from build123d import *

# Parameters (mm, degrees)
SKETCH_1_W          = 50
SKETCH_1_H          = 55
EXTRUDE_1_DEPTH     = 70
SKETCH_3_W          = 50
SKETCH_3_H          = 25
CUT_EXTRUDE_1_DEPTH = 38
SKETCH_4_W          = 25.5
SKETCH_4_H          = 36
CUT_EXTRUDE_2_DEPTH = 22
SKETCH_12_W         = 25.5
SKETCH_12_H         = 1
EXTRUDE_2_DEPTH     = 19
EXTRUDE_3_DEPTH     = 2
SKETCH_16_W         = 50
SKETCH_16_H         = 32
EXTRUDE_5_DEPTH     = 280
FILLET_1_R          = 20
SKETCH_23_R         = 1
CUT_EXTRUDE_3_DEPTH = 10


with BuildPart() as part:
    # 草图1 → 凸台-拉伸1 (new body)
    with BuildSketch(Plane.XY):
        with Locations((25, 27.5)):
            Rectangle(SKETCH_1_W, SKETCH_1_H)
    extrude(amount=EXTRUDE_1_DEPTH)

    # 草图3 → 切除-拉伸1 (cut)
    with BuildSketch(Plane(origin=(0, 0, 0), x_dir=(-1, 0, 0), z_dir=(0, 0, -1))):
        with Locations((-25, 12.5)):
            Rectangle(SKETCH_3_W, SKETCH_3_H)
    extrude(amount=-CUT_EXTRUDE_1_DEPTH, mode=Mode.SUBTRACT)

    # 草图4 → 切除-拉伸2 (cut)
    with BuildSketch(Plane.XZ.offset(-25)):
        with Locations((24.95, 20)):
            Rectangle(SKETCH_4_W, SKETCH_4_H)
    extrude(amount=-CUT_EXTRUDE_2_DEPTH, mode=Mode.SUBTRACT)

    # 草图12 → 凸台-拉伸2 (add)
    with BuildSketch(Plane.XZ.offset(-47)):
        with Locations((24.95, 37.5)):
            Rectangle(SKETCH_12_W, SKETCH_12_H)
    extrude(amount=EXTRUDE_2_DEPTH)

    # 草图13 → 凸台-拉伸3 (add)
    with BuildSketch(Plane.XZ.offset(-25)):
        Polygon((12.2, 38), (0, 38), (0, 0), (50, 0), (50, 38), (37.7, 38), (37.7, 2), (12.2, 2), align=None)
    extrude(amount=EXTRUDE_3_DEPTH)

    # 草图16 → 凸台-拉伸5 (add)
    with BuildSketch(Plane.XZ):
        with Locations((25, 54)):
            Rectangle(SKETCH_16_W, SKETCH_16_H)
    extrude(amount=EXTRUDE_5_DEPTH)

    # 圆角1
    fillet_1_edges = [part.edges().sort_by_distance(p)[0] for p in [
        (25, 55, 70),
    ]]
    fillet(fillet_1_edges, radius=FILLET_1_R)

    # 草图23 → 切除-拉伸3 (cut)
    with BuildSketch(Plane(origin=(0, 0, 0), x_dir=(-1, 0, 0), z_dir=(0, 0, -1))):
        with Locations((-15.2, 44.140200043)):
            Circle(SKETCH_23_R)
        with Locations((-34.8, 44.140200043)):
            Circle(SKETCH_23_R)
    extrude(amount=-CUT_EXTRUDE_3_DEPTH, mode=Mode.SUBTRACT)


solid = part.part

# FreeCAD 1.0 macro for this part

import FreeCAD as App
import Part
import Sketcher

V = App.Vector
Q = App.Units.Quantity


def edges_at(feature, points):
    """Names of the edges that pass closest to the given points."""
    edges = feature.Shape.Edges
    near = lambda p: min(range(len(edges)), key=lambda i: edges[i].distToShape(Part.Vertex(*p))[0])
    return sorted({f"Edge{near(p) + 1}" for p in points})

doc = App.newDocument("Part")
body = doc.addObject("PartDesign::Body", "Body")

sketch1 = body.newObject("Sketcher::SketchObject", "Sketch")
sketch1.AttachmentSupport = (doc.getObject("XY_Plane"), [""])
sketch1.MapMode = "FlatFace"
sketch1.addGeometry([
    Part.LineSegment(V(0, 55, 0), V(0, 0, 0)),
    Part.LineSegment(V(0, 0, 0), V(50, 0, 0)),
    Part.LineSegment(V(50, 0, 0), V(50, 55, 0)),
    Part.LineSegment(V(50, 55, 0), V(0, 55, 0)),
], False)
sketch1.addConstraint([
    Sketcher.Constraint("Coincident", 0, 2, 1, 1),
    Sketcher.Constraint("Coincident", 1, 2, 2, 1),
    Sketcher.Constraint("Coincident", 2, 2, 3, 1),
    Sketcher.Constraint("Coincident", 3, 2, 0, 1),
    Sketcher.Constraint("Vertical", 0),
    Sketcher.Constraint("Horizontal", 1),
    Sketcher.Constraint("Vertical", 2),
    Sketcher.Constraint("Horizontal", 3),
    Sketcher.Constraint("Coincident", 0, 2, -1, 1),
    Sketcher.Constraint("DistanceX", 1, 1, 1, 2, Q("50 mm")),
    Sketcher.Constraint("DistanceY", 0, 2, 0, 1, Q("55 mm")),
])
pad1 = body.newObject("PartDesign::Pad", "Pad")
pad1.Profile = sketch1
pad1.Length = 70

sketch2 = body.newObject("Sketcher::SketchObject", "Sketch001")
sketch2.AttachmentSupport = (doc.getObject("XY_Plane"), [""])
sketch2.MapMode = "FlatFace"
sketch2.addGeometry([
    Part.LineSegment(V(50, 25, 0), V(50, 0, 0)),
    Part.LineSegment(V(50, 0, 0), V(0, 0, 0)),
    Part.LineSegment(V(0, 0, 0), V(0, 25, 0)),
    Part.LineSegment(V(0, 25, 0), V(50, 25, 0)),
], False)
sketch2.addConstraint([
    Sketcher.Constraint("Coincident", 0, 2, 1, 1),
    Sketcher.Constraint("Coincident", 1, 2, 2, 1),
    Sketcher.Constraint("Coincident", 2, 2, 3, 1),
    Sketcher.Constraint("Coincident", 3, 2, 0, 1),
    Sketcher.Constraint("Vertical", 0),
    Sketcher.Constraint("Horizontal", 1),
    Sketcher.Constraint("Vertical", 2),
    Sketcher.Constraint("Horizontal", 3),
    Sketcher.Constraint("Coincident", 1, 2, -1, 1),
    Sketcher.Constraint("DistanceX", 1, 2, 1, 1, Q("50 mm")),
    Sketcher.Constraint("DistanceY", 0, 2, 0, 1, Q("25 mm")),
])
pocket1 = body.newObject("PartDesign::Pocket", "Pocket")
pocket1.Profile = sketch2
pocket1.Length = 38
pocket1.Reversed = True

sketch3 = body.newObject("Sketcher::SketchObject", "Sketch002")
sketch3.AttachmentSupport = (doc.getObject("XZ_Plane"), [""])
sketch3.MapMode = "FlatFace"
sketch3.AttachmentOffset = App.Placement(V(0, 0, -25), App.Rotation())
sketch3.addGeometry([
    Part.LineSegment(V(12, 38, 0), V(12, 2, 0)),
    Part.LineSegment(V(12, 2, 0), V(38, 2, 0)),
    Part.LineSegment(V(38, 2, 0), V(38, 38, 0)),
    Part.LineSegment(V(38, 38, 0), V(12, 38, 0)),
], False)
sketch3.addConstraint([
    Sketcher.Constraint("Coincident", 0, 2, 1, 1),
    Sketcher.Constraint("Coincident", 1, 2, 2, 1),
    Sketcher.Constraint("Coincident", 2, 2, 3, 1),
    Sketcher.Constraint("Coincident", 3, 2, 0, 1),
    Sketcher.Constraint("Vertical", 0),
    Sketcher.Constraint("Horizontal", 1),
    Sketcher.Constraint("Vertical", 2),
    Sketcher.Constraint("Horizontal", 3),
    Sketcher.Constraint("DistanceY", 0, 2, 0, 1, Q("36 mm")),
    Sketcher.Constraint("DistanceX", 1, 1, 1, 2, Q("25.5 mm")),
    Sketcher.Constraint("DistanceY", -1, 1, 0, 2, Q("2 mm")),
    Sketcher.Constraint("DistanceX", -1, 1, 0, 2, Q("12.2 mm")),
])
pocket2 = body.newObject("PartDesign::Pocket", "Pocket001")
pocket2.Profile = sketch3
pocket2.Length = 22

sketch4 = body.newObject("Sketcher::SketchObject", "Sketch003")
sketch4.AttachmentSupport = (doc.getObject("XZ_Plane"), [""])
sketch4.MapMode = "FlatFace"
sketch4.AttachmentOffset = App.Placement(V(0, 0, -47), App.Rotation())
sketch4.addGeometry([
    Part.LineSegment(V(12.2, 38, 0), V(12.2, 37, 0)),
    Part.LineSegment(V(12.2, 37, 0), V(37.7, 37, 0)),
    Part.LineSegment(V(37.7, 37, 0), V(37.7, 38, 0)),
    Part.LineSegment(V(37.7, 38, 0), V(12.2, 38, 0)),
], False)
sketch4.addConstraint([
    Sketcher.Constraint("Coincident", 0, 2, 1, 1),
    Sketcher.Constraint("Coincident", 1, 2, 2, 1),
    Sketcher.Constraint("Coincident", 2, 2, 3, 1),
    Sketcher.Constraint("Coincident", 3, 2, 0, 1),
    Sketcher.Constraint("Vertical", 0),
    Sketcher.Constraint("Horizontal", 1),
    Sketcher.Constraint("Vertical", 2),
    Sketcher.Constraint("Horizontal", 3),
    Sketcher.Constraint("DistanceY", 0, 2, 0, 1, Q("1 mm")),
    Sketcher.Constraint("DistanceX", 1, 1, 1, 2, Q("25.5 mm")),
    Sketcher.Constraint("DistanceY", -1, 1, 0, 2, Q("37 mm")),
    Sketcher.Constraint("DistanceX", -1, 1, 0, 2, Q("12.2 mm")),
])
pad2 = body.newObject("PartDesign::Pad", "Pad001")
pad2.Profile = sketch4
pad2.Length = 19

sketch5 = body.newObject("Sketcher::SketchObject", "Sketch004")
sketch5.AttachmentSupport = (doc.getObject("XZ_Plane"), [""])
sketch5.MapMode = "FlatFace"
sketch5.AttachmentOffset = App.Placement(V(0, 0, -25), App.Rotation())
sketch5.addGeometry([
    Part.LineSegment(V(12, 38, 0), V(0, 38, 0)),
    Part.LineSegment(V(0, 38, 0), V(0, 0, 0)),
    Part.LineSegment(V(0, 0, 0), V(50, 0, 0)),
    Part.LineSegment(V(50, 0, 0), V(50, 38, 0)),
    Part.LineSegment(V(50, 38, 0), V(38, 38, 0)),
    Part.LineSegment(V(38, 38, 0), V(38, 2, 0)),
    Part.LineSegment(V(38, 2, 0), V(12, 2, 0)),
    Part.LineSegment(V(12, 2, 0), V(12, 38, 0)),
], False)
sketch5.addConstraint([
    Sketcher.Constraint("Coincident", 0, 2, 1, 1),
    Sketcher.Constraint("Coincident", 1, 2, 2, 1),
    Sketcher.Constraint("Coincident", 2, 2, 3, 1),
    Sketcher.Constraint("Coincident", 3, 2, 4, 1),
    Sketcher.Constraint("Coincident", 4, 2, 5, 1),
    Sketcher.Constraint("Coincident", 5, 2, 6, 1),
    Sketcher.Constraint("Coincident", 6, 2, 7, 1),
    Sketcher.Constraint("Coincident", 7, 2, 0, 1),
    Sketcher.Constraint("Horizontal", 0),
    Sketcher.Constraint("Vertical", 1),
    Sketcher.Constraint("Horizontal", 2),
    Sketcher.Constraint("Vertical", 3),
    Sketcher.Constraint("Horizontal", 4),
    Sketcher.Constraint("Vertical", 5),
    Sketcher.Constraint("Horizontal", 6),
    Sketcher.Constraint("Vertical", 7),
    Sketcher.Constraint("Coincident", 1, 2, -1, 1),
    Sketcher.Constraint("Horizontal", 0, 2, 3, 2),
    Sketcher.Constraint("DistanceX", 2, 1, 2, 2, Q("50 mm")),
    Sketcher.Constraint("DistanceY", 1, 2, 1, 1, Q("38 mm")),
    Sketcher.Constraint("DistanceY", 5, 2, 5, 1, Q("36 mm")),
    Sketcher.Constraint("DistanceX", 0, 2, 0, 1, Q("12.2 mm")),
    Sketcher.Constraint("DistanceX", 4, 2, 4, 1, Q("12.3 mm")),
])
pad3 = body.newObject("PartDesign::Pad", "Pad002")
pad3.Profile = sketch5
pad3.Length = 2

sketch6 = body.newObject("Sketcher::SketchObject", "Sketch005")
sketch6.AttachmentSupport = (doc.getObject("XZ_Plane"), [""])
sketch6.MapMode = "FlatFace"
sketch6.addGeometry([
    Part.LineSegment(V(0, 70, 0), V(0, 38, 0)),
    Part.LineSegment(V(0, 38, 0), V(50, 38, 0)),
    Part.LineSegment(V(50, 38, 0), V(50, 70, 0)),
    Part.LineSegment(V(50, 70, 0), V(0, 70, 0)),
], False)
sketch6.addConstraint([
    Sketcher.Constraint("Coincident", 0, 2, 1, 1),
    Sketcher.Constraint("Coincident", 1, 2, 2, 1),
    Sketcher.Constraint("Coincident", 2, 2, 3, 1),
    Sketcher.Constraint("Coincident", 3, 2, 0, 1),
    Sketcher.Constraint("Vertical", 0),
    Sketcher.Constraint("Horizontal", 1),
    Sketcher.Constraint("Vertical", 2),
    Sketcher.Constraint("Horizontal", 3),
    Sketcher.Constraint("PointOnObject", 0, 2, -2),
    Sketcher.Constraint("DistanceX", 1, 1, 1, 2, Q("50 mm")),
    Sketcher.Constraint("DistanceY", 0, 2, 0, 1, Q("32 mm")),
    Sketcher.Constraint("DistanceY", -1, 1, 0, 2, Q("38 mm")),
])
pad4 = body.newObject("PartDesign::Pad", "Pad003")
pad4.Profile = sketch6
pad4.Length = 280
doc.recompute()

fillet = body.newObject("PartDesign::Fillet", "Fillet")
fillet.Base = (pad4, edges_at(pad4, [(25, 55, 70)]))
fillet.Radius = 20

sketch7 = body.newObject("Sketcher::SketchObject", "Sketch006")
sketch7.AttachmentSupport = (doc.getObject("XY_Plane"), [""])
sketch7.MapMode = "FlatFace"
sketch7.addGeometry([
    Part.Circle(V(15.2, 44.1, 0), V(0, 0, 1), 1),
    Part.Circle(V(34.8, 44.1, 0), V(0, 0, 1), 1),
], False)
sketch7.addConstraint([
    Sketcher.Constraint("Equal", 0, 1),
    Sketcher.Constraint("Horizontal", 0, 3, 1, 3),
    Sketcher.Constraint("Diameter", 0, Q("2 mm")),
    Sketcher.Constraint("DistanceX", -1, 1, 0, 3, Q("15.2 mm")),
    Sketcher.Constraint("DistanceX", -1, 1, 1, 3, Q("34.8 mm")),
    Sketcher.Constraint("DistanceY", -1, 1, 0, 3, Q("44.1402 mm")),
])
pocket3 = body.newObject("PartDesign::Pocket", "Pocket002")
pocket3.Profile = sketch7
pocket3.Length = 10
pocket3.Reversed = True

doc.recompute()
